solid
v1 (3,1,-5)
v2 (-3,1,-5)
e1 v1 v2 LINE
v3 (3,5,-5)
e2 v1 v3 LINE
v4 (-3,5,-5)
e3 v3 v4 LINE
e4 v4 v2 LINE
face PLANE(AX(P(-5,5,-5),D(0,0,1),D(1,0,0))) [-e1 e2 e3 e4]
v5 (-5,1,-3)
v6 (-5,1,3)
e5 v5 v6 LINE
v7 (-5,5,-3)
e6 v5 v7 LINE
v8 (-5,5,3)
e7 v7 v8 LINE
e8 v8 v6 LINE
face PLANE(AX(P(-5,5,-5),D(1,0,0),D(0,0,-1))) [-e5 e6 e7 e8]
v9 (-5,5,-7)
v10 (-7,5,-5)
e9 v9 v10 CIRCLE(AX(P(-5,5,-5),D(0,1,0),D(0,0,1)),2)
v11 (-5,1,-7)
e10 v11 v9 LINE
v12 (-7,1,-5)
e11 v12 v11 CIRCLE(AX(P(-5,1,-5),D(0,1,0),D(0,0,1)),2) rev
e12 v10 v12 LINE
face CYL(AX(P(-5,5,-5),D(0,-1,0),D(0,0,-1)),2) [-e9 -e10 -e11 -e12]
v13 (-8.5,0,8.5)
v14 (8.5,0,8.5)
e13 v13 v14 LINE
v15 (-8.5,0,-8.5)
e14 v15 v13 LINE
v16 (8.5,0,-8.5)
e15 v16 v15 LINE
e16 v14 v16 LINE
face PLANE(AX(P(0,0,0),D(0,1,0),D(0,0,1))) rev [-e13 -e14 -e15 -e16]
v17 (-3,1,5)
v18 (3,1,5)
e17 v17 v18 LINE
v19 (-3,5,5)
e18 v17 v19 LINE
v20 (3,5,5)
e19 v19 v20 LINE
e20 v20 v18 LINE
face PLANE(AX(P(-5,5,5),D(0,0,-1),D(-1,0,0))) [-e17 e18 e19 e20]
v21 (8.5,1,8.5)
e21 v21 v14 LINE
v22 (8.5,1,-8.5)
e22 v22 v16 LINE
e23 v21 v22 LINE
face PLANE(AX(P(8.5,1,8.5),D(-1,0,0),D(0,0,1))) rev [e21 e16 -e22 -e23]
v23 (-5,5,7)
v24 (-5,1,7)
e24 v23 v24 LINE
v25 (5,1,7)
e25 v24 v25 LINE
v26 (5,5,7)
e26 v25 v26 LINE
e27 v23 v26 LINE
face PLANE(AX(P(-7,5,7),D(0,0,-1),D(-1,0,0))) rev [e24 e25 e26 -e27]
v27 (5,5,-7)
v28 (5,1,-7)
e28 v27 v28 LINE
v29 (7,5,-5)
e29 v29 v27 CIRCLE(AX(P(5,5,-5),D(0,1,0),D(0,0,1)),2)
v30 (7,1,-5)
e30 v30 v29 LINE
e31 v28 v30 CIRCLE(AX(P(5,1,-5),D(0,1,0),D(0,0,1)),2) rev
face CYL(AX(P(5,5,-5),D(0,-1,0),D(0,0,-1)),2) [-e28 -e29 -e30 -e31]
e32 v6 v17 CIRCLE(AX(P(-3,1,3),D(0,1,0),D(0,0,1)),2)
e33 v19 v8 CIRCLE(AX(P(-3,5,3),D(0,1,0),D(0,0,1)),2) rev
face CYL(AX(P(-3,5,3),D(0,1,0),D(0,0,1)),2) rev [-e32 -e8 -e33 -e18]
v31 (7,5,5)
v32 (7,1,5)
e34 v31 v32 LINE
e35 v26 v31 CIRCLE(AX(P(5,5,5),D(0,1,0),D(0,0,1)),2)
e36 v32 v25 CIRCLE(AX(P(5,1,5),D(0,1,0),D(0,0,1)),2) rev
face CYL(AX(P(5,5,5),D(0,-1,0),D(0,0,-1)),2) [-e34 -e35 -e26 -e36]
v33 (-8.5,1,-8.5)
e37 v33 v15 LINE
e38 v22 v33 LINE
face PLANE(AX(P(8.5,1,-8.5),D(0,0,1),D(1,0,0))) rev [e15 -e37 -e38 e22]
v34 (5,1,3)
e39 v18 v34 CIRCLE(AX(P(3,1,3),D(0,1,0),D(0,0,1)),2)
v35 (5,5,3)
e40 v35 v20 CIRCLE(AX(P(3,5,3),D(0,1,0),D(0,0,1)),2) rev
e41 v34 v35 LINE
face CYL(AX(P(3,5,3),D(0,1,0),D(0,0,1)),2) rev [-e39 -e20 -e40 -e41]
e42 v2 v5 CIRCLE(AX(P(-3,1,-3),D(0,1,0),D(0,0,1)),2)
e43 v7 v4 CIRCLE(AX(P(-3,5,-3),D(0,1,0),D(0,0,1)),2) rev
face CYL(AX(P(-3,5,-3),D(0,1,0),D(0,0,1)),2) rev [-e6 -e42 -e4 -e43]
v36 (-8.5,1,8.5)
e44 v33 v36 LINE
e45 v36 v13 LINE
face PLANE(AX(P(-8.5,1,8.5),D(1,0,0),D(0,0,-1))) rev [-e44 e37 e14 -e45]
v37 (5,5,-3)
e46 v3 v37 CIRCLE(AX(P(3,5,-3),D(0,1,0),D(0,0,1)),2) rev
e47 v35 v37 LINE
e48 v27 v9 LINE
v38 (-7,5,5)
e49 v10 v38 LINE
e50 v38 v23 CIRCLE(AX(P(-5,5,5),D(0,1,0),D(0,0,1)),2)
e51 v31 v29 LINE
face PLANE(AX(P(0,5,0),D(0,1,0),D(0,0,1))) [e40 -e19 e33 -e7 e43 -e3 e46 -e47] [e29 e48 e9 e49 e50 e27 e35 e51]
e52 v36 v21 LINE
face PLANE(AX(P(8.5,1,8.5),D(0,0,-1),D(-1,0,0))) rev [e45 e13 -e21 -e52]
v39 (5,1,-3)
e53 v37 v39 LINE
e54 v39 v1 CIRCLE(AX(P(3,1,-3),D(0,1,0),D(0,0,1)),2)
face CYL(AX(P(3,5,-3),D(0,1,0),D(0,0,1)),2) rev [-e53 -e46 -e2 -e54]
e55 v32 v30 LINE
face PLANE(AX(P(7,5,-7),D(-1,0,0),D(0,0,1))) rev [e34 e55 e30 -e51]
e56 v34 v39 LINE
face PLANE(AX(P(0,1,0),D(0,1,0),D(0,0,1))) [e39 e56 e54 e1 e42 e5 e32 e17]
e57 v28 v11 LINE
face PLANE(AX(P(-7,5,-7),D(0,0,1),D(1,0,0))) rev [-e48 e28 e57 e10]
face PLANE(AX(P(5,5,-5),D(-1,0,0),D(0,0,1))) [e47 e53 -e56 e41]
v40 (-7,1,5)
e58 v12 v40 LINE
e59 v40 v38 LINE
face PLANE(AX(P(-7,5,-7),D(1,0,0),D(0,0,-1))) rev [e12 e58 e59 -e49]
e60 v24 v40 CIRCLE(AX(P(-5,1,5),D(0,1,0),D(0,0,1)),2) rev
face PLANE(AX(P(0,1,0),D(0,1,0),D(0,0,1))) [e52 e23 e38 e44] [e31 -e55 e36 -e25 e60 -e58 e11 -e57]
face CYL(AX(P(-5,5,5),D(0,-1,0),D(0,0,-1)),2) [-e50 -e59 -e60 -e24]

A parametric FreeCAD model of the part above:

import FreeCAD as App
import Part
import Sketcher

V = App.Vector
Q = App.Units.Quantity


def edges_at(feature, points):
    """Names of the edges that pass closest to the given points."""
    edges = feature.Shape.Edges
    near = lambda p: min(range(len(edges)), key=lambda i: edges[i].distToShape(Part.Vertex(*p))[0])
    return sorted({f"Edge{near(p) + 1}" for p in points})

doc = App.newDocument("Part")
params = doc.addObject("Spreadsheet::Sheet", "Params")
for row, (alias, value) in enumerate([
    ("sketch1_width", "17 mm"),
    ("pad1_length", "1 mm"),
    ("sketch2_width", "14 mm"),
    ("sketch2_width2", "10 mm"),
    ("pad2_length", "4 mm"),
    ("fillet_radius", "2 mm"),
], start=1):
    params.set(f"A{row}", alias)
    params.set(f"B{row}", "=" + value)
    params.setAlias(f"B{row}", alias)

body = doc.addObject("PartDesign::Body", "Body")

sketch1 = body.newObject("Sketcher::SketchObject", "Sketch")
sketch1.AttachmentSupport = (doc.getObject("XZ_Plane"), [""])
sketch1.MapMode = "FlatFace"
sketch1.addGeometry([
    Part.LineSegment(V(-8.5, -8.5, 0), V(-8.5, 8.5, 0)),
    Part.LineSegment(V(-8.5, 8.5, 0), V(8.5, 8.5, 0)),
    Part.LineSegment(V(8.5, 8.5, 0), V(8.5, -8.5, 0)),
    Part.LineSegment(V(8.5, -8.5, 0), V(-8.5, -8.5, 0)),
], False)
sketch1.addConstraint([
    Sketcher.Constraint("Coincident", 0, 2, 1, 1),
    Sketcher.Constraint("Coincident", 1, 2, 2, 1),
    Sketcher.Constraint("Coincident", 2, 2, 3, 1),
    Sketcher.Constraint("Coincident", 3, 2, 0, 1),
    Sketcher.Constraint("Vertical", 0),
    Sketcher.Constraint("Horizontal", 1),
    Sketcher.Constraint("Vertical", 2),
    Sketcher.Constraint("Horizontal", 3),
    Sketcher.Constraint("Symmetric", 0, 2, 2, 2, -1, 1),
    Sketcher.Constraint("Equal", 3, 0),
    Sketcher.Constraint("DistanceX", 1, 1, 1, 2, Q("17 mm")),
])
sketch1.setExpression("Constraints[10]", "Params.sketch1_width")
pad1 = body.newObject("PartDesign::Pad", "Pad")
pad1.Profile = sketch1
pad1.setExpression("Length", "Params.pad1_length")
pad1.Reversed = True

sketch2 = body.newObject("Sketcher::SketchObject", "Sketch001")
sketch2.AttachmentSupport = (doc.getObject("XZ_Plane"), [""])
sketch2.MapMode = "FlatFace"
sketch2.AttachmentOffset = App.Placement(V(0, 0, -1), App.Rotation())
sketch2.addGeometry([
    Part.LineSegment(V(-7, -7, 0), V(-7, 7, 0)),
    Part.LineSegment(V(-7, 7, 0), V(7, 7, 0)),
    Part.LineSegment(V(7, 7, 0), V(7, -7, 0)),
    Part.LineSegment(V(7, -7, 0), V(-7, -7, 0)),
    Part.LineSegment(V(5, 5, 0), V(-5, 5, 0)),
    Part.LineSegment(V(-5, 5, 0), V(-5, -5, 0)),
    Part.LineSegment(V(-5, -5, 0), V(5, -5, 0)),
    Part.LineSegment(V(5, -5, 0), V(5, 5, 0)),
], False)
sketch2.addConstraint([
    Sketcher.Constraint("Coincident", 0, 2, 1, 1),
    Sketcher.Constraint("Coincident", 1, 2, 2, 1),
    Sketcher.Constraint("Coincident", 2, 2, 3, 1),
    Sketcher.Constraint("Coincident", 3, 2, 0, 1),
    Sketcher.Constraint("Coincident", 4, 2, 5, 1),
    Sketcher.Constraint("Coincident", 5, 2, 6, 1),
    Sketcher.Constraint("Coincident", 6, 2, 7, 1),
    Sketcher.Constraint("Coincident", 7, 2, 4, 1),
    Sketcher.Constraint("Vertical", 0),
    Sketcher.Constraint("Horizontal", 1),
    Sketcher.Constraint("Vertical", 2),
    Sketcher.Constraint("Horizontal", 3),
    Sketcher.Constraint("Horizontal", 4),
    Sketcher.Constraint("Vertical", 5),
    Sketcher.Constraint("Horizontal", 6),
    Sketcher.Constraint("Vertical", 7),
    Sketcher.Constraint("Symmetric", 0, 2, 2, 2, -1, 1),
    Sketcher.Constraint("Symmetric", 4, 2, 6, 2, -1, 1),
    Sketcher.Constraint("Equal", 3, 0),
    Sketcher.Constraint("Equal", 6, 5),
    Sketcher.Constraint("DistanceX", 1, 1, 1, 2, Q("14 mm")),
    Sketcher.Constraint("DistanceX", 4, 2, 4, 1, Q("10 mm")),
])
sketch2.setExpression("Constraints[20]", "Params.sketch2_width")
sketch2.setExpression("Constraints[21]", "Params.sketch2_width2")
pad2 = body.newObject("PartDesign::Pad", "Pad001")
pad2.Profile = sketch2
pad2.setExpression("Length", "Params.pad2_length")
pad2.Reversed = True
doc.recompute()

fillet = body.newObject("PartDesign::Fillet", "Fillet")
fillet.Base = (pad2, edges_at(pad2, [
    (7, 3, 7),
    (7, 3, -7),
    (-7, 3, -7),
    (-7, 3, 7),
    (-5, 3, -5),
    (-5, 3, 5),
    (5, 3, 5),
    (5, 3, -5),
]))
fillet.setExpression("Radius", "Params.fillet_radius")

doc.recompute()
